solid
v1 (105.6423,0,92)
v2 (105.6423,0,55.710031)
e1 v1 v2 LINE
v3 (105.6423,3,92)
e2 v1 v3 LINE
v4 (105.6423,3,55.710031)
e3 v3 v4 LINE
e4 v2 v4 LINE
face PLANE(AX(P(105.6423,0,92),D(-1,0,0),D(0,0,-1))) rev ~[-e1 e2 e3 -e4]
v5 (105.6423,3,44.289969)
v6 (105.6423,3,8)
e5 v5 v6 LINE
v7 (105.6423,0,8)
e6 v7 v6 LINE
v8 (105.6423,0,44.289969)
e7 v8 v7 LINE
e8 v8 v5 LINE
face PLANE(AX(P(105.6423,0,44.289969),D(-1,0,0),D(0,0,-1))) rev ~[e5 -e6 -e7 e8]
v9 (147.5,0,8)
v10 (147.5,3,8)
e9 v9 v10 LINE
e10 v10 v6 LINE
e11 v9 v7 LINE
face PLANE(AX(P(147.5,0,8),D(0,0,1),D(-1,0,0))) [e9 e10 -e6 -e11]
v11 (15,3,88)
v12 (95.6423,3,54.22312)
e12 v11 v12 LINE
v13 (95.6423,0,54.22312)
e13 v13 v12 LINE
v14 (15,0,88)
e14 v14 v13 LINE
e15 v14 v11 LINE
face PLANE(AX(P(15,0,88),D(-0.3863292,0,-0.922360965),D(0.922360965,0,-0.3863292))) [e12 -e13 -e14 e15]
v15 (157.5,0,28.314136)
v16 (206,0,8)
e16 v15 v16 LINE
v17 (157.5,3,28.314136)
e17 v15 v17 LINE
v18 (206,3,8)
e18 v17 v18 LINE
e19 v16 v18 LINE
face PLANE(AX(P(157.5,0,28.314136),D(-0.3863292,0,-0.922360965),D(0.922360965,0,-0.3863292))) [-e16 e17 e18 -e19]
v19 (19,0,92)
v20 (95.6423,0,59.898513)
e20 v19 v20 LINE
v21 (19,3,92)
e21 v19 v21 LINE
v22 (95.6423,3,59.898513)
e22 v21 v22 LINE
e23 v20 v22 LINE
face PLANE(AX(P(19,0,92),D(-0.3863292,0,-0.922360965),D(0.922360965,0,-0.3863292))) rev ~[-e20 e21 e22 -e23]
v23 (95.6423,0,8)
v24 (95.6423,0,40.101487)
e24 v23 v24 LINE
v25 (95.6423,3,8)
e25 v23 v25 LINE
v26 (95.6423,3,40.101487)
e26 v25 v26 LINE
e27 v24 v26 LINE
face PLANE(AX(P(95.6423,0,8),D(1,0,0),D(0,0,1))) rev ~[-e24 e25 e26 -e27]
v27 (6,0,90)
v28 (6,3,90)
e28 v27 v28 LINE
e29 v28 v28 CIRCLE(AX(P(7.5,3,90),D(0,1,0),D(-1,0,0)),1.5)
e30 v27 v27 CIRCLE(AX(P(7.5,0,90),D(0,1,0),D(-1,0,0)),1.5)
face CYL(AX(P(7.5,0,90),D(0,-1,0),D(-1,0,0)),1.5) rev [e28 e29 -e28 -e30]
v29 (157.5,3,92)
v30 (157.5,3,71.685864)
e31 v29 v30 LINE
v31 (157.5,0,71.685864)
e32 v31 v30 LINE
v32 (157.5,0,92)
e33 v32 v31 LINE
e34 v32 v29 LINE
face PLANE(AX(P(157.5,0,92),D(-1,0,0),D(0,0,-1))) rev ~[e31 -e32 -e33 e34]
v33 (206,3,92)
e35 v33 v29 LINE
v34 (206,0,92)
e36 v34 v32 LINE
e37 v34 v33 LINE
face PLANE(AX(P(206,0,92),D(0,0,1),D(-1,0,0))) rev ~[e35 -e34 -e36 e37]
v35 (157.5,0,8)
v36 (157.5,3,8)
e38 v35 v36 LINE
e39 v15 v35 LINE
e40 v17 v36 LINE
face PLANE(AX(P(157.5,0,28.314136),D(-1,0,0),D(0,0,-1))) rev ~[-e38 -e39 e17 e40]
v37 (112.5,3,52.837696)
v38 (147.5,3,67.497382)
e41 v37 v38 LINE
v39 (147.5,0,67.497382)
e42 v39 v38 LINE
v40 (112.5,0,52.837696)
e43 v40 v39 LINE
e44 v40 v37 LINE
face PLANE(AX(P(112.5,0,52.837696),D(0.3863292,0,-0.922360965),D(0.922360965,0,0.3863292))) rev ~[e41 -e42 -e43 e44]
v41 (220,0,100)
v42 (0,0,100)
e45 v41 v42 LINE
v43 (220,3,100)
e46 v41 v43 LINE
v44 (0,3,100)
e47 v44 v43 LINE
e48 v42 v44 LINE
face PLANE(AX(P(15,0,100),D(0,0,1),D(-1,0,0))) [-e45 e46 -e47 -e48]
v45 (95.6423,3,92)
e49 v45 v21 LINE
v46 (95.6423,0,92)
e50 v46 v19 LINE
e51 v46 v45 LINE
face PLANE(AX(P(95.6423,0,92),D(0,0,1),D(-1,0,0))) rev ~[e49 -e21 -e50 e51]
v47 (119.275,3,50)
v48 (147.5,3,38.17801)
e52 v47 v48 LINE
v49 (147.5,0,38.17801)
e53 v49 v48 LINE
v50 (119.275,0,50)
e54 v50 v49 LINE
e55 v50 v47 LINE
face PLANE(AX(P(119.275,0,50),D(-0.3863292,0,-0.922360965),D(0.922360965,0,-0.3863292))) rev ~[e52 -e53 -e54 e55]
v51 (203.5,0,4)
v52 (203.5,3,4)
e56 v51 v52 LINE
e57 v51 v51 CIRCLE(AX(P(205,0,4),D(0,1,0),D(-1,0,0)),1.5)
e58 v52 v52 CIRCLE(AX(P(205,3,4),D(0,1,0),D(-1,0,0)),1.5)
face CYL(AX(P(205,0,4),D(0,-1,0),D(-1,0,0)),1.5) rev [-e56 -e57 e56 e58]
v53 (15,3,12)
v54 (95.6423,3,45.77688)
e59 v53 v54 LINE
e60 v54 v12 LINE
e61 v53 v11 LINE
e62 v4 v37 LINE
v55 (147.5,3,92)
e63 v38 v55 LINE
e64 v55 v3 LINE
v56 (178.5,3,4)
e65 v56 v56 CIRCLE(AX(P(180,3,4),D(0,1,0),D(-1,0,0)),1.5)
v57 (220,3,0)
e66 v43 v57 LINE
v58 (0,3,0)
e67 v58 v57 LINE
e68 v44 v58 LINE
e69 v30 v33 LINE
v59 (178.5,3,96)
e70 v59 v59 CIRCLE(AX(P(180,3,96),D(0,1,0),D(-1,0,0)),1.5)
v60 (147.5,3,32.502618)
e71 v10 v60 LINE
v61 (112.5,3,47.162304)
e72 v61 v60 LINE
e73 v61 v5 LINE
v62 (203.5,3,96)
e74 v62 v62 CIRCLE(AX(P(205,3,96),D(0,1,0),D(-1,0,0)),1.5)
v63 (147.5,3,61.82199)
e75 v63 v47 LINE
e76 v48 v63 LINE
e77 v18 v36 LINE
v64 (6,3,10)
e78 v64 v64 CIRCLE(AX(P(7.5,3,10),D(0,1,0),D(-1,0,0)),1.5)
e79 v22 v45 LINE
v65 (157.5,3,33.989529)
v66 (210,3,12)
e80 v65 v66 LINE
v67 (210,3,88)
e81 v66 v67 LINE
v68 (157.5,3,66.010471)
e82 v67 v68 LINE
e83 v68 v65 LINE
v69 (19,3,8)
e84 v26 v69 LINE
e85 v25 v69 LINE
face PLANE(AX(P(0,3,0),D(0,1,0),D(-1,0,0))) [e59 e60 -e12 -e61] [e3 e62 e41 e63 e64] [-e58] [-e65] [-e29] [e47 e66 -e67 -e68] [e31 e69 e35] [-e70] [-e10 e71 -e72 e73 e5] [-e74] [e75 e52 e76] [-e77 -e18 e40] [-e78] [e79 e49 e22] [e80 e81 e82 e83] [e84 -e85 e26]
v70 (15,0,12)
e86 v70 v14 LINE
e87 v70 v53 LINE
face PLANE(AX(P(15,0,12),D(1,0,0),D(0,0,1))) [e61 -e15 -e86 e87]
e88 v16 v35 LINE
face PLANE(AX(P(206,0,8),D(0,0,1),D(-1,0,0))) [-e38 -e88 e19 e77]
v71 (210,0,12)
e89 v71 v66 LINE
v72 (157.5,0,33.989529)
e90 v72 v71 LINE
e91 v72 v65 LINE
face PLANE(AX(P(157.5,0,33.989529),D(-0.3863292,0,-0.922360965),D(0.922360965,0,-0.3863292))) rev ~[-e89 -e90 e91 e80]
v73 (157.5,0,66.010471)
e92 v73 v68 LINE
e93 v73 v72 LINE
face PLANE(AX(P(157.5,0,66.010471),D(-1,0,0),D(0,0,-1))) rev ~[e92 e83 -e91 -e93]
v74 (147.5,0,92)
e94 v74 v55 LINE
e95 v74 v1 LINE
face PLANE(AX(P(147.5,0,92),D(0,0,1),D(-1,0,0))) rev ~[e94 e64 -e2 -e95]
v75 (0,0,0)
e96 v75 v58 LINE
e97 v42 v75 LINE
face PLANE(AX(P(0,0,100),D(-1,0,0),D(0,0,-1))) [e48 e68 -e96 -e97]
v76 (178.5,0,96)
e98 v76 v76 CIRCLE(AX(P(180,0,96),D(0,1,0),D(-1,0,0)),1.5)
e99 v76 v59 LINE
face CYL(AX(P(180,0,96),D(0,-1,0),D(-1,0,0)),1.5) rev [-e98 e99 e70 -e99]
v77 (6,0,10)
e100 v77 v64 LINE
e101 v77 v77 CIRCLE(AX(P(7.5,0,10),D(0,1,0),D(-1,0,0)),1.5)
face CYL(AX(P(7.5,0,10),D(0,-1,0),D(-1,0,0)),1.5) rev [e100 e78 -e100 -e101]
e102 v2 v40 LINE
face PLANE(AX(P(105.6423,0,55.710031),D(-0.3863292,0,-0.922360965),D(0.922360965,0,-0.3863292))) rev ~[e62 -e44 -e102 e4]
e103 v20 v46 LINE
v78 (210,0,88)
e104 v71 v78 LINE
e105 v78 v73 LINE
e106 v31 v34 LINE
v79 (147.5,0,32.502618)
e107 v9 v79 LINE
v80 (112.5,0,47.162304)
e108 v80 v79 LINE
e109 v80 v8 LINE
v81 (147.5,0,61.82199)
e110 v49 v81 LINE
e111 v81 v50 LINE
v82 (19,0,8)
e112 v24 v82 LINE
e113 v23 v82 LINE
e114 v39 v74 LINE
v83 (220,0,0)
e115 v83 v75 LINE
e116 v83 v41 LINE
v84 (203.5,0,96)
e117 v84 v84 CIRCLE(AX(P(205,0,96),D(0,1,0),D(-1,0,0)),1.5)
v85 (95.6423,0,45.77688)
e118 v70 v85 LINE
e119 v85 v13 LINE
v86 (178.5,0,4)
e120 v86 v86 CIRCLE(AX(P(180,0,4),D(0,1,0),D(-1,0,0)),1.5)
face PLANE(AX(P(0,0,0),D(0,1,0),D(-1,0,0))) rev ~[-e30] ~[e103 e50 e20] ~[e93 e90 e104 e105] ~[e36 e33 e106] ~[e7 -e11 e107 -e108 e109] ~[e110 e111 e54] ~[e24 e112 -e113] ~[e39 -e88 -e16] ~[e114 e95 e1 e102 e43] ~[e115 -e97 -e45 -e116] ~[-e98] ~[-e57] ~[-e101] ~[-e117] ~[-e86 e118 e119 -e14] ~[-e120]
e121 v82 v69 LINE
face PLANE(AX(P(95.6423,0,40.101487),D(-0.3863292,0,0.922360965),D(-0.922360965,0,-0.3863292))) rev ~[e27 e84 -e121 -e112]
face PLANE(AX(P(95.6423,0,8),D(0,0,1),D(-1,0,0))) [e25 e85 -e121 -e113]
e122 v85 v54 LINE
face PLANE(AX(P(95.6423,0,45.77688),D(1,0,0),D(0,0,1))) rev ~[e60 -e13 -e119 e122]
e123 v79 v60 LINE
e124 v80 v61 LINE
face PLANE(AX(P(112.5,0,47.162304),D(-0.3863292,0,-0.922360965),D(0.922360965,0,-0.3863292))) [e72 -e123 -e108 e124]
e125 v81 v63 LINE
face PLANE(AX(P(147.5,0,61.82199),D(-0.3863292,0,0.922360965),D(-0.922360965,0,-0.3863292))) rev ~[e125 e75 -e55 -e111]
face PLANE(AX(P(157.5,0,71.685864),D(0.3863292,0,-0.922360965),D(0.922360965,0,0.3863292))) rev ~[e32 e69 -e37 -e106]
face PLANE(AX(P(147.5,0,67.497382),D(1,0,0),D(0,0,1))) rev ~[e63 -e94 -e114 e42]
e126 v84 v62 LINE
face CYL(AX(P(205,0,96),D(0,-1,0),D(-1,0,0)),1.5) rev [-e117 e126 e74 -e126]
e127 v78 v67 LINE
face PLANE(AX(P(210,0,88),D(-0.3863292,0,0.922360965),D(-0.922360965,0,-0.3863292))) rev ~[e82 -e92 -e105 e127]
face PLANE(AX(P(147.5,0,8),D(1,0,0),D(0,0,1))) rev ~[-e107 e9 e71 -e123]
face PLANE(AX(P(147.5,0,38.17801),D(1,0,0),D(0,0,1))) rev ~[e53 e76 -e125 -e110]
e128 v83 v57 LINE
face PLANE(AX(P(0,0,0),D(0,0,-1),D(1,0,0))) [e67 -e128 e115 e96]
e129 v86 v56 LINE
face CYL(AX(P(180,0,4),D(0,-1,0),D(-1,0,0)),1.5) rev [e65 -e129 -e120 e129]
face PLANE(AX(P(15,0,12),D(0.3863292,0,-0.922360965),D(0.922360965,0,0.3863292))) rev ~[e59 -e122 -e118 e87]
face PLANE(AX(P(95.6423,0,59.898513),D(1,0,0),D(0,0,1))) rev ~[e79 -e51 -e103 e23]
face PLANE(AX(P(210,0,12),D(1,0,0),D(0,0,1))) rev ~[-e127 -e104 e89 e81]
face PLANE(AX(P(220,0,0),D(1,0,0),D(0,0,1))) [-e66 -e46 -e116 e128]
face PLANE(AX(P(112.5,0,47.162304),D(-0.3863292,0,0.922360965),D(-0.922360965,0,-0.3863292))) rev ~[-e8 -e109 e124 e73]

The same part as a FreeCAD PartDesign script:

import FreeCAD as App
import Part
import Sketcher
Q = App.Units.Quantity


def add_polygon(sketch, points):
    """Adds a closed chain of lines whose ends are joined by coincident constraints."""
    first, n = sketch.GeometryCount, len(points)
    for a, b in zip(points, points[1:] + points[:1]):
        sketch.addGeometry(Part.LineSegment(App.Vector(*a, 0), App.Vector(*b, 0)), False)
    for i in range(n):
        sketch.addConstraint(Sketcher.Constraint("Coincident", first + i, 2, first + (i + 1) % n, 1))

doc = App.newDocument("Part")
params = doc.addObject("Spreadsheet::Sheet", "Params")
for row, (alias, value) in enumerate([
    ("sketch1_diameter", "3 mm"),
    ("sketch1_height", "100 mm"),
    ("sketch1_width", "48.5 mm"),
    ("sketch1_height2", "36.29 mm"),
    ("pad1_length", "3 mm"),
], start=1):
    params.set(f"A{row}", alias)
    params.set(f"B{row}", "=" + value)
    params.setAlias(f"B{row}", alias)

body = doc.addObject("PartDesign::Body", "Body")

# Sketch on XZ plane
sketch1 = body.newObject("Sketcher::SketchObject", "Sketch")
sketch1.AttachmentSupport = (doc.getObject("XZ_Plane"), [""])
sketch1.MapMode = "FlatFace"
add_polygon(sketch1, [(0, 0), (0, 100), (220, 100), (220, 0)])  # lines 0-3
add_polygon(sketch1, [(15, 88), (15, 12), (95.6, 45.8), (95.6, 54.2)])  # lines 4-7
sketch1.addGeometry(Part.Circle(App.Vector(7.5, 10, 0), App.Vector(0, 0, 1), 1.5), False)  # 8
sketch1.addGeometry(Part.Circle(App.Vector(7.5, 90, 0), App.Vector(0, 0, 1), 1.5), False)  # 9
add_polygon(sketch1, [(157.5, 8), (206, 8), (157.5, 28.3)])  # lines 10-12
add_polygon(sketch1, [(105.6, 8), (147.5, 8), (147.5, 32.5), (112.5, 47.2), (105.6, 44.3)])  # lines 13-17
add_polygon(sketch1, [(19, 8), (95.6, 8), (95.6, 40.1)])  # lines 18-20
sketch1.addGeometry(Part.Circle(App.Vector(180, 4, 0), App.Vector(0, 0, 1), 1.5), False)  # 21
sketch1.addGeometry(Part.Circle(App.Vector(205, 4, 0), App.Vector(0, 0, 1), 1.5), False)  # 22
add_polygon(sketch1, [(19, 92), (95.6, 59.9), (95.6, 92)])  # lines 23-25
sketch1.addGeometry(Part.Circle(App.Vector(180, 96, 0), App.Vector(0, 0, 1), 1.5), False)  # 26
sketch1.addGeometry(Part.Circle(App.Vector(205, 96, 0), App.Vector(0, 0, 1), 1.5), False)  # 27
add_polygon(sketch1, [(147.5, 92), (105.6, 92), (105.6, 55.7), (112.5, 52.8), (147.5, 67.5)])  # lines 28-32
add_polygon(sketch1, [(206, 92), (157.5, 92), (157.5, 71.7)])  # lines 33-35
add_polygon(sketch1, [(210, 12), (210, 88), (157.5, 66), (157.5, 34)])  # lines 36-39
add_polygon(sketch1, [(119.3, 50), (147.5, 38.2), (147.5, 61.8)])  # lines 40-42
sketch1.addConstraint(Sketcher.Constraint("Vertical", 0))
sketch1.addConstraint(Sketcher.Constraint("Horizontal", 1))
sketch1.addConstraint(Sketcher.Constraint("Vertical", 2))
sketch1.addConstraint(Sketcher.Constraint("Horizontal", 3))
sketch1.addConstraint(Sketcher.Constraint("Vertical", 4))
sketch1.addConstraint(Sketcher.Constraint("Vertical", 6))
sketch1.addConstraint(Sketcher.Constraint("Horizontal", 10))
sketch1.addConstraint(Sketcher.Constraint("Vertical", 12))
sketch1.addConstraint(Sketcher.Constraint("Horizontal", 13))
sketch1.addConstraint(Sketcher.Constraint("Vertical", 14))
sketch1.addConstraint(Sketcher.Constraint("Vertical", 17))
sketch1.addConstraint(Sketcher.Constraint("Horizontal", 18))
sketch1.addConstraint(Sketcher.Constraint("Vertical", 19))
sketch1.addConstraint(Sketcher.Constraint("Vertical", 24))
sketch1.addConstraint(Sketcher.Constraint("Horizontal", 25))
sketch1.addConstraint(Sketcher.Constraint("Horizontal", 28))
sketch1.addConstraint(Sketcher.Constraint("Vertical", 29))
sketch1.addConstraint(Sketcher.Constraint("Vertical", 32))
sketch1.addConstraint(Sketcher.Constraint("Horizontal", 33))
sketch1.addConstraint(Sketcher.Constraint("Vertical", 34))
sketch1.addConstraint(Sketcher.Constraint("Vertical", 36))
sketch1.addConstraint(Sketcher.Constraint("Vertical", 38))
sketch1.addConstraint(Sketcher.Constraint("Vertical", 41))
sketch1.addConstraint(Sketcher.Constraint("Coincident", 3, 2, -1, 1))
sketch1.addConstraint(Sketcher.Constraint("Equal", 8, 9))
sketch1.addConstraint(Sketcher.Constraint("Equal", 9, 21))
sketch1.addConstraint(Sketcher.Constraint("Equal", 21, 22))
sketch1.addConstraint(Sketcher.Constraint("Equal", 22, 26))
sketch1.addConstraint(Sketcher.Constraint("Equal", 26, 27))
sketch1.addConstraint(Sketcher.Constraint("Parallel", 7, 11))
sketch1.addConstraint(Sketcher.Constraint("Parallel", 11, 15))
sketch1.addConstraint(Sketcher.Constraint("Parallel", 5, 16))
sketch1.addConstraint(Sketcher.Constraint("Parallel", 16, 20))
sketch1.addConstraint(Sketcher.Constraint("Parallel", 15, 23))
sketch1.addConstraint(Sketcher.Constraint("Parallel", 23, 30))
sketch1.addConstraint(Sketcher.Constraint("Parallel", 20, 31))
sketch1.addConstraint(Sketcher.Constraint("Parallel", 31, 35))
sketch1.addConstraint(Sketcher.Constraint("Parallel", 35, 37))
sketch1.addConstraint(Sketcher.Constraint("Parallel", 30, 39))
sketch1.addConstraint(Sketcher.Constraint("Parallel", 39, 40))
sketch1.addConstraint(Sketcher.Constraint("Parallel", 37, 42))
sketch1.addConstraint(Sketcher.Constraint("Horizontal", 21, 3, 22, 3))
sketch1.addConstraint(Sketcher.Constraint("Horizontal", 26, 3, 27, 3))
sketch1.addConstraint(Sketcher.Constraint("Horizontal", 12, 2, 13, 2))
sketch1.addConstraint(Sketcher.Constraint("Horizontal", 17, 2, 18, 2))
sketch1.addConstraint(Sketcher.Constraint("Horizontal", 25, 2, 28, 2))
sketch1.addConstraint(Sketcher.Constraint("Horizontal", 32, 2, 33, 2))
sketch1.addConstraint(Sketcher.Constraint("Horizontal", 7, 2, 36, 2))
sketch1.addConstraint(Sketcher.Constraint("Horizontal", 4, 2, 39, 2))
sketch1.addConstraint(Sketcher.Constraint("Vertical", 8, 3, 9, 3))
sketch1.addConstraint(Sketcher.Constraint("Vertical", 21, 3, 26, 3))
sketch1.addConstraint(Sketcher.Constraint("Vertical", 22, 3, 27, 3))
sketch1.addConstraint(Sketcher.Constraint("Vertical", 6, 2, 18, 2))
sketch1.addConstraint(Sketcher.Constraint("Vertical", 19, 2, 23, 2))
sketch1.addConstraint(Sketcher.Constraint("Vertical", 20, 2, 25, 2))
sketch1.addConstraint(Sketcher.Constraint("Vertical", 17, 2, 28, 2))
sketch1.addConstraint(Sketcher.Constraint("Vertical", 15, 2, 30, 2))
sketch1.addConstraint(Sketcher.Constraint("Vertical", 14, 2, 31, 2))
sketch1.addConstraint(Sketcher.Constraint("Vertical", 12, 2, 33, 2))
sketch1.addConstraint(Sketcher.Constraint("Vertical", 10, 2, 35, 2))
sketch1.addConstraint(Sketcher.Constraint("Vertical", 34, 2, 37, 2))
sketch1.addConstraint(Sketcher.Constraint("Vertical", 32, 2, 40, 2))
sketch1.addConstraint(Sketcher.Constraint("Equal", 19, 24))
sketch1.addConstraint(Sketcher.Constraint("Equal", 17, 29))
sketch1.addConstraint(Sketcher.Constraint("Diameter", 8, Q("3 mm")))
sketch1.addConstraint(Sketcher.Constraint("DistanceY", 0, 1, 0, 2, Q("100 mm")))
sketch1.addConstraint(Sketcher.Constraint("DistanceY", -1, 1, 8, 3, Q("10 mm")))
sketch1.addConstraint(Sketcher.Constraint("DistanceY", -1, 1, 21, 3, Q("4 mm")))
sketch1.addConstraint(Sketcher.Constraint("DistanceX", -1, 1, 22, 3, Q("205 mm")))
sketch1.addConstraint(Sketcher.Constraint("DistanceX", -1, 1, 4, 2, Q("15 mm")))
sketch1.addConstraint(Sketcher.Constraint("DistanceY", -1, 1, 10, 2, Q("8 mm")))
sketch1.addConstraint(Sketcher.Constraint("DistanceX", 21, 3, 22, 3, Q("25 mm")))
sketch1.addConstraint(Sketcher.Constraint("DistanceY", 9, 3, 0, 2, Q("10 mm")))
sketch1.addConstraint(Sketcher.Constraint("DistanceY", 26, 3, 0, 2, Q("4 mm")))
sketch1.addConstraint(Sketcher.Constraint("DistanceX", 27, 3, 1, 2, Q("15 mm")))
sketch1.addConstraint(Sketcher.Constraint("DistanceY", 21, 3, 4, 2, Q("8 mm")))
sketch1.addConstraint(Sketcher.Constraint("DistanceX", 13, 2, 12, 2, Q("10 mm")))
sketch1.addConstraint(Sketcher.Constraint("DistanceX", 5, 2, 16, 2, Q("10 mm")))
sketch1.addConstraint(Sketcher.Constraint("DistanceX", 4, 2, 20, 2, Q("4 mm")))
sketch1.addConstraint(Sketcher.Constraint("DistanceY", 7, 2, 25, 2, Q("4 mm")))
sketch1.addConstraint(Sketcher.Constraint("DistanceY", 25, 2, 0, 2, Q("8 mm")))
sketch1.addConstraint(Sketcher.Constraint("DistanceX", 35, 2, 36, 2, Q("4 mm")))
sketch1.addConstraint(Sketcher.Constraint("DistanceX", 36, 2, 1, 2, Q("10 mm")))
sketch1.addConstraint(Sketcher.Constraint("DistanceX", 10, 1, 10, 2, Q("48.5 mm")))
sketch1.addConstraint(Sketcher.Constraint("DistanceY", -1, 1, 42, 2, Q("50 mm")))
sketch1.addConstraint(Sketcher.Constraint("DistanceX", 15, 2, 14, 2, Q("35 mm")))
sketch1.addConstraint(Sketcher.Constraint("DistanceY", 17, 2, 17, 1, Q("36.29 mm")))
sketch1.addConstraint(Sketcher.Constraint("DistanceX", -1, 1, 8, 3, Q("7.5 mm")))
sketch1.addConstraint(Sketcher.Constraint("DistanceY", 38, 2, 38, 1, Q("32.021 mm")))
sketch1.addConstraint(Sketcher.Constraint("DistanceY", 41, 1, 41, 2, Q("23.644 mm")))
sketch1.addConstraint(Sketcher.Constraint("Distance", 16, Q("7.435 mm")))
sketch1.setExpression("Constraints[101]", "Params.sketch1_diameter")
sketch1.setExpression("Constraints[102]", "Params.sketch1_height")
sketch1.setExpression("Constraints[120]", "Params.sketch1_width")
sketch1.setExpression("Constraints[123]", "Params.sketch1_height2")
pad1 = body.newObject("PartDesign::Pad", "Pad")
pad1.Profile = sketch1
pad1.setExpression("Length", "Params.pad1_length")
pad1.Reversed = True

doc.recompute()
